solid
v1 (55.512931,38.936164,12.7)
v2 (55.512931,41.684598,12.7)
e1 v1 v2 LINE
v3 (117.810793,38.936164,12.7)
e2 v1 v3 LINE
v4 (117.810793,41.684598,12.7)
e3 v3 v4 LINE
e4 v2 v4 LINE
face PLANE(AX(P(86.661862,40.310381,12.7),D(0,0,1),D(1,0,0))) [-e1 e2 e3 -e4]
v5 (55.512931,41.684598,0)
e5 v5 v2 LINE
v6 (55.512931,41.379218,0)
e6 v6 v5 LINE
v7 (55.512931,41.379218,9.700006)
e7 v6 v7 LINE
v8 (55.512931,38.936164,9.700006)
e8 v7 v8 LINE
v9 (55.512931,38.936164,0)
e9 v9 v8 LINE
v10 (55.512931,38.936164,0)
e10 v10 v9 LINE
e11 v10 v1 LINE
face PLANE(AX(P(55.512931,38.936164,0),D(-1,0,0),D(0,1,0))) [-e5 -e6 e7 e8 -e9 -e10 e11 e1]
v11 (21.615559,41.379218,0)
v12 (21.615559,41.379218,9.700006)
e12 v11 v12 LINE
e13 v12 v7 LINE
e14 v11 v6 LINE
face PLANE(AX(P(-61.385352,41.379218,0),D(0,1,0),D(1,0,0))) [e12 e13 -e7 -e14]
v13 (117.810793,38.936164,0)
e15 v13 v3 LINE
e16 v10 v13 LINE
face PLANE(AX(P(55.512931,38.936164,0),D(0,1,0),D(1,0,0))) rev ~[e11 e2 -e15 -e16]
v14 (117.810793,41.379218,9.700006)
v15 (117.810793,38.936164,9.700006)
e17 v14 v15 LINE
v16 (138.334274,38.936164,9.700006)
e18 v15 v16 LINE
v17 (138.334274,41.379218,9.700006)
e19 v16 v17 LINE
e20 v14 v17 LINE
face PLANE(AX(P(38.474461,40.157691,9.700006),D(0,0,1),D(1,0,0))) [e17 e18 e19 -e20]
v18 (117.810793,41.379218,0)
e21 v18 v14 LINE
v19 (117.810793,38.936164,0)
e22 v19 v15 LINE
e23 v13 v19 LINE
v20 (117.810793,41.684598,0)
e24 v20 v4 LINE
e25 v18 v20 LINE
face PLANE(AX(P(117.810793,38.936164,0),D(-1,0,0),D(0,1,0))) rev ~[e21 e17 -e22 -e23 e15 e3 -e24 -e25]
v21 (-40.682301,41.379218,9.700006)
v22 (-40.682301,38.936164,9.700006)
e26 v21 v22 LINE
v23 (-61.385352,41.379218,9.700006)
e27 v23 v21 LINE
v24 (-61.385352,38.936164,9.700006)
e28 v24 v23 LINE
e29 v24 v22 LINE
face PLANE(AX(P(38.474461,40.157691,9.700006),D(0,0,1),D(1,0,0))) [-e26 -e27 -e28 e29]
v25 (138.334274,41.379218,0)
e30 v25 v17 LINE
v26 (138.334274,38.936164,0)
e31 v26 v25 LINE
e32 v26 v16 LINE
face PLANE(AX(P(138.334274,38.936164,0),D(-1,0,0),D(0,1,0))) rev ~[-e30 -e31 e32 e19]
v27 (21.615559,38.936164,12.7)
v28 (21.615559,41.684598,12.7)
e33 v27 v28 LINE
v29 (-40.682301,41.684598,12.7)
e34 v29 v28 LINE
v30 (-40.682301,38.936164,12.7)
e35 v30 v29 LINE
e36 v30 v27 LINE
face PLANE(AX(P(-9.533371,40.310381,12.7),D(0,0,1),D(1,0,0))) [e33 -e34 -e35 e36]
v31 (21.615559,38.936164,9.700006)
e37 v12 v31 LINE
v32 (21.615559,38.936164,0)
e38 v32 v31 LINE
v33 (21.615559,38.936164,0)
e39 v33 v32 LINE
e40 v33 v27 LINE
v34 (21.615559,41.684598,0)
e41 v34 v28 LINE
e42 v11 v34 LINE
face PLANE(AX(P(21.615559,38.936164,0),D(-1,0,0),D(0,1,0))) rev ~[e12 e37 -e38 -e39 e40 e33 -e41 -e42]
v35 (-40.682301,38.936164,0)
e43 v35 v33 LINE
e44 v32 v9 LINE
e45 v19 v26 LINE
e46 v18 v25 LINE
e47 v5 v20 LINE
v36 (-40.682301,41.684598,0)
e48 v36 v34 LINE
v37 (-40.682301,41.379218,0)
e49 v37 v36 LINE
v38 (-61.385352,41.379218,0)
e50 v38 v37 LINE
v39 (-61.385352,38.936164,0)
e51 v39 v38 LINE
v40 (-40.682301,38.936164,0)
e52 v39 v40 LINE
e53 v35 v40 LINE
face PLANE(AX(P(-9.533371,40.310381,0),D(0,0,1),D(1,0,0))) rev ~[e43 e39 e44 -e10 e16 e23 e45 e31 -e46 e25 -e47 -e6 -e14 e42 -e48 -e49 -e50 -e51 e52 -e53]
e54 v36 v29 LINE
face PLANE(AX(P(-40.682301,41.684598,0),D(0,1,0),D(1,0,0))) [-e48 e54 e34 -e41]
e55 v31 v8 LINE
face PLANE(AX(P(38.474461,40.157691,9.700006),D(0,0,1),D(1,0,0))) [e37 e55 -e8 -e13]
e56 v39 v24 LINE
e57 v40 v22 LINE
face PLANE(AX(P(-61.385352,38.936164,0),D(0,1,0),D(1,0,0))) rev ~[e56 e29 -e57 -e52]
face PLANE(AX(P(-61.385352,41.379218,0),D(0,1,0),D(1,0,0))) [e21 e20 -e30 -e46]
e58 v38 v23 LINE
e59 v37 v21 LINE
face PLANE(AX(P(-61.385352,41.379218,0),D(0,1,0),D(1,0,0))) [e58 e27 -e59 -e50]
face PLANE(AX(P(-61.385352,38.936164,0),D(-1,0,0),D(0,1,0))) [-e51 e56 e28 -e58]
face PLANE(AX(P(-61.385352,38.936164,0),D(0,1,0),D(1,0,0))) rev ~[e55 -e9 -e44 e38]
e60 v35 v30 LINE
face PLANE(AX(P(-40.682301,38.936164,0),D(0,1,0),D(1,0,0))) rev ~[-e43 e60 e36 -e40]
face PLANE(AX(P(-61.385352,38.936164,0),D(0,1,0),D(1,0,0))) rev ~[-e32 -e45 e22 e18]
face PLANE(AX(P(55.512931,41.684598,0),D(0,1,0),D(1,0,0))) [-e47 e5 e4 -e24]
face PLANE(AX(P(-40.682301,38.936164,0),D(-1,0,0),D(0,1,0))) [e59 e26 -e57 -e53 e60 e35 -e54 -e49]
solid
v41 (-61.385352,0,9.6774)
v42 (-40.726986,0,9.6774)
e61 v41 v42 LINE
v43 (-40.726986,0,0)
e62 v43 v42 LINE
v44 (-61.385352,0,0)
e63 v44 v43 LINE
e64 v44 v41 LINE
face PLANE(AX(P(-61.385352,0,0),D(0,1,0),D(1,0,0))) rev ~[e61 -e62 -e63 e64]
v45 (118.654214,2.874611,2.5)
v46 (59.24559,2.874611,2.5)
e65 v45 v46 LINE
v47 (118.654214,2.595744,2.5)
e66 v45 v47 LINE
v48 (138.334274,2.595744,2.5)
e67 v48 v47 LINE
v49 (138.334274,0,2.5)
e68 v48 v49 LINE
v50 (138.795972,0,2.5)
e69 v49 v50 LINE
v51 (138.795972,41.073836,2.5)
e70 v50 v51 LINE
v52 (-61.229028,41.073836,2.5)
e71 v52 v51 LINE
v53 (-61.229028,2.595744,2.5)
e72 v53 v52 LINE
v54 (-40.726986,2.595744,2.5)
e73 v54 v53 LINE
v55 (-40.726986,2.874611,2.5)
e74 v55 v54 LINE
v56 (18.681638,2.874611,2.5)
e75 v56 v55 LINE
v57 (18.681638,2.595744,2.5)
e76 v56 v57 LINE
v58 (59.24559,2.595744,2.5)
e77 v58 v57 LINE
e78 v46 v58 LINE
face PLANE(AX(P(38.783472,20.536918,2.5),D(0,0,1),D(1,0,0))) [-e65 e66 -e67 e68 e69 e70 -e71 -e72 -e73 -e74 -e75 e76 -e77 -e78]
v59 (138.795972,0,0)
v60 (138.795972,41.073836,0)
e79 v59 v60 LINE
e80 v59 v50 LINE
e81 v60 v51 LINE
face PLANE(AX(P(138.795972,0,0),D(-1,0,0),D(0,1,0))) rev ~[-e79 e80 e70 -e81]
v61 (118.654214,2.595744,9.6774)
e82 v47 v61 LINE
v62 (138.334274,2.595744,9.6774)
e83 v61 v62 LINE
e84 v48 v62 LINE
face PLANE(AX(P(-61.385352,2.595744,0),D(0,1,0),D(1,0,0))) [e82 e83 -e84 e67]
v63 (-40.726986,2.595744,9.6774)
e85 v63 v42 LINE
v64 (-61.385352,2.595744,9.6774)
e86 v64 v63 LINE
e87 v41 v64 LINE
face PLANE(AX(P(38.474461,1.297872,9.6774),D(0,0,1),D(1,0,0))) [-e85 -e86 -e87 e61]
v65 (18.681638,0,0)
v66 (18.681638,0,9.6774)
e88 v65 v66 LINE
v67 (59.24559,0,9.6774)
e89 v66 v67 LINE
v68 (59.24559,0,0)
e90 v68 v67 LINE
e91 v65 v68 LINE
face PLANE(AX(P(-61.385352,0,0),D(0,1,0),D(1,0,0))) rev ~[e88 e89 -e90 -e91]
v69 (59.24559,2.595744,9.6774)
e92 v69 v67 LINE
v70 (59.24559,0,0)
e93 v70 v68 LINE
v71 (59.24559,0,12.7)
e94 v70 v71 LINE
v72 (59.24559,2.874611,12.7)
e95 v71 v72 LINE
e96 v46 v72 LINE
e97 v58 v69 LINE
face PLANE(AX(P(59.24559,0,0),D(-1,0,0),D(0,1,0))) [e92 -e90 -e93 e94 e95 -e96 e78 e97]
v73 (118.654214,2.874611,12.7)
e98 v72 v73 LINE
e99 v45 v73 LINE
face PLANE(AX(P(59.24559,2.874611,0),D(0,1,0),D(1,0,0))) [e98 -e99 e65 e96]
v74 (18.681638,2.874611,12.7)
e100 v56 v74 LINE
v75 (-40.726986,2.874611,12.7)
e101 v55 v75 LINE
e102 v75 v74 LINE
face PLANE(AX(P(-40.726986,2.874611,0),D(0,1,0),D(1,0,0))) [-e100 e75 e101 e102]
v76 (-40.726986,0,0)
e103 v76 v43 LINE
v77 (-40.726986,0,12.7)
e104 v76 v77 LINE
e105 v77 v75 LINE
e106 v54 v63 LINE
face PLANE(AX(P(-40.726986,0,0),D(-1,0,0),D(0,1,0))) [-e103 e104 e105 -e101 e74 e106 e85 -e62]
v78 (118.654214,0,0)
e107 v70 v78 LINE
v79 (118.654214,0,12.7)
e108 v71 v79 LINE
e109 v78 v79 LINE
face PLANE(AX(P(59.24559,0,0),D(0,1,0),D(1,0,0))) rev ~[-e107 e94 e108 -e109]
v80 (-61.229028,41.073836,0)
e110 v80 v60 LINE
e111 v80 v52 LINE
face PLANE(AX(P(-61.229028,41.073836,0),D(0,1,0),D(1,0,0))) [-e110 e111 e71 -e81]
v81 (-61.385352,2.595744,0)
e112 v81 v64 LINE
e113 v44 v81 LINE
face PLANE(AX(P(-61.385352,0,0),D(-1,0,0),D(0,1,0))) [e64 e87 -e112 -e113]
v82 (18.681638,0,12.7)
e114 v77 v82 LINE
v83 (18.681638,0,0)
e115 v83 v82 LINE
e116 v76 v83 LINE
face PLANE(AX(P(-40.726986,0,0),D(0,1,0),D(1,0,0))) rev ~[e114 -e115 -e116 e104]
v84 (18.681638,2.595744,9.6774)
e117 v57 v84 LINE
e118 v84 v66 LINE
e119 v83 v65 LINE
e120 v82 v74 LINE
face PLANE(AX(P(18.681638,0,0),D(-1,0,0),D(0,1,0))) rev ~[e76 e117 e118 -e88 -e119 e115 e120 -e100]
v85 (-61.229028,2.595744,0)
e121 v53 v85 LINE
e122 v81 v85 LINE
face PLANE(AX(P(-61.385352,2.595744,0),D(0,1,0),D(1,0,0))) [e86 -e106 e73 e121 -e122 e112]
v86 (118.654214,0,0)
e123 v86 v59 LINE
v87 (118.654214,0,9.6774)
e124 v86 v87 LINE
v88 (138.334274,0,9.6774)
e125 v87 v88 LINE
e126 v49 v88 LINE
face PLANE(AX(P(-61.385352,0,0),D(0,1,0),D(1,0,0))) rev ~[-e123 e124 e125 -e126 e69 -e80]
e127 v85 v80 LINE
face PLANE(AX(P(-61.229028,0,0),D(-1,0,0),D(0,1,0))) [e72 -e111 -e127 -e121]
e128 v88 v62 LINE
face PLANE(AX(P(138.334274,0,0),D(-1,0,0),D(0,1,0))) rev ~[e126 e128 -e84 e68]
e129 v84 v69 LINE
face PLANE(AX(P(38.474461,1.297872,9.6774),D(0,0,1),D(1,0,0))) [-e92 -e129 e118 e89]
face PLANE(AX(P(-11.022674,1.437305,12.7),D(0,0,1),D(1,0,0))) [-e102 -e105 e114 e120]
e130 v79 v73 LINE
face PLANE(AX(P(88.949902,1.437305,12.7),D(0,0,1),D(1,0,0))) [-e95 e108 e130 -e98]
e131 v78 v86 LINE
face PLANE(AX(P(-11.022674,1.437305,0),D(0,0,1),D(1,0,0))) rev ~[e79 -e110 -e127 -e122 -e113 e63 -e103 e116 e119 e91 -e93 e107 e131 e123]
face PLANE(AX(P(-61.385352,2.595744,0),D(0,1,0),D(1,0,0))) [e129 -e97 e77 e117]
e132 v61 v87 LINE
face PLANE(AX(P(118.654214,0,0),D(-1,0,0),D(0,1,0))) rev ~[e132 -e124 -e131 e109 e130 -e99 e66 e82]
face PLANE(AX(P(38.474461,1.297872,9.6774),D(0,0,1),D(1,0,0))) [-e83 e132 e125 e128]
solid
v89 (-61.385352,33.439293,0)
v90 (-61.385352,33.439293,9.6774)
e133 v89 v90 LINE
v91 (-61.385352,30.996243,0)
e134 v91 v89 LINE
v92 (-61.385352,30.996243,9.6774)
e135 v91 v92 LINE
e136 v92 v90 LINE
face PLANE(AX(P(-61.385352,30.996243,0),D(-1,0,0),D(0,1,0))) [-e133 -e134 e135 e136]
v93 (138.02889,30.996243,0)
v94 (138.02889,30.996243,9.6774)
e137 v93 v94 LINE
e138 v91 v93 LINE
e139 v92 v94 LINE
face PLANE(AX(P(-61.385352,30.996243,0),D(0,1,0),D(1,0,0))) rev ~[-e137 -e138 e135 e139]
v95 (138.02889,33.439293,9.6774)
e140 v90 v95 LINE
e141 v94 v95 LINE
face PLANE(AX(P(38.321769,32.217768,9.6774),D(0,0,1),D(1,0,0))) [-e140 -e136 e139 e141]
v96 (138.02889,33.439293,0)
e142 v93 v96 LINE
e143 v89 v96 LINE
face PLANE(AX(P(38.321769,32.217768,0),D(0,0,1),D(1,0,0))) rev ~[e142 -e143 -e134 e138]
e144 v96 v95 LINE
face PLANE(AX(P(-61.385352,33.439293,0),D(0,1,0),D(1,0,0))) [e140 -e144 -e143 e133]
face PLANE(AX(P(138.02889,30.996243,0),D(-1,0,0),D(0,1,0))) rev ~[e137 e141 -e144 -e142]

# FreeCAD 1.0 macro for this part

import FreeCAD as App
import Part
import Sketcher

V = App.Vector
Q = App.Units.Quantity

doc = App.newDocument("Part")
body = doc.addObject("PartDesign::Body", "Body")

# Sketch on XY plane
sketch1 = body.newObject("Sketcher::SketchObject", "Sketch")
sketch1.AttachmentSupport = (doc.getObject("XY_Plane"), [""])
sketch1.MapMode = "FlatFace"
sketch1.addGeometry([
    Part.LineSegment(V(-61.4, 41.4, 0), V(-61.4, 38.9, 0)),
    Part.LineSegment(V(-61.4, 38.9, 0), V(138.3, 38.9, 0)),
    Part.LineSegment(V(138.3, 38.9, 0), V(138.3, 41.4, 0)),
    Part.LineSegment(V(138.3, 41.4, 0), V(-61.4, 41.4, 0)),
], False)
sketch1.addConstraint([
    Sketcher.Constraint("Coincident", 0, 2, 1, 1),
    Sketcher.Constraint("Coincident", 1, 2, 2, 1),
    Sketcher.Constraint("Coincident", 2, 2, 3, 1),
    Sketcher.Constraint("Coincident", 3, 2, 0, 1),
    Sketcher.Constraint("Vertical", 0),
    Sketcher.Constraint("Horizontal", 1),
    Sketcher.Constraint("Vertical", 2),
    Sketcher.Constraint("Horizontal", 3),
    Sketcher.Constraint("DistanceX", 1, 1, 1, 2, 199.719626),
    Sketcher.Constraint("DistanceY", 0, 2, 0, 1, 2.443053),
    Sketcher.Constraint("DistanceX", 0, 2, -1, 1, 61.385352),
    Sketcher.Constraint("DistanceY", -1, 1, 0, 2, 38.936164),
])
pad1 = body.newObject("PartDesign::Pad", "Pad")
pad1.Profile = sketch1
pad1.Length = 9.700006

# Sketch on XY plane
sketch2 = body.newObject("Sketcher::SketchObject", "Sketch001")
sketch2.AttachmentSupport = (doc.getObject("XY_Plane"), [""])
sketch2.MapMode = "FlatFace"
sketch2.addGeometry([
    Part.LineSegment(V(-40.7, 41.7, 0), V(-40.7, 38.9, 0)),  # 0
    Part.LineSegment(V(-40.7, 38.9, 0), V(21.6, 38.9, 0)),  # 1
    Part.LineSegment(V(21.6, 38.9, 0), V(21.6, 41.7, 0)),  # 2
    Part.LineSegment(V(21.6, 41.7, 0), V(-40.7, 41.7, 0)),  # 3
    Part.LineSegment(V(55.5, 41.7, 0), V(55.5, 38.9, 0)),  # 4
    Part.LineSegment(V(55.5, 38.9, 0), V(117.8, 38.9, 0)),  # 5
    Part.LineSegment(V(117.8, 38.9, 0), V(117.8, 41.7, 0)),  # 6
    Part.LineSegment(V(117.8, 41.7, 0), V(55.5, 41.7, 0)),  # 7
], False)
sketch2.addConstraint([
    Sketcher.Constraint("Coincident", 0, 2, 1, 1),
    Sketcher.Constraint("Coincident", 1, 2, 2, 1),
    Sketcher.Constraint("Coincident", 2, 2, 3, 1),
    Sketcher.Constraint("Coincident", 3, 2, 0, 1),
    Sketcher.Constraint("Coincident", 4, 2, 5, 1),
    Sketcher.Constraint("Coincident", 5, 2, 6, 1),
    Sketcher.Constraint("Coincident", 6, 2, 7, 1),
    Sketcher.Constraint("Coincident", 7, 2, 4, 1),
    Sketcher.Constraint("Vertical", 0),
    Sketcher.Constraint("Horizontal", 1),
    Sketcher.Constraint("Vertical", 2),
    Sketcher.Constraint("Horizontal", 3),
    Sketcher.Constraint("Vertical", 4),
    Sketcher.Constraint("Horizontal", 5),
    Sketcher.Constraint("Vertical", 6),
    Sketcher.Constraint("Horizontal", 7),
    Sketcher.Constraint("Horizontal", 1, 2, 4, 2),
    Sketcher.Constraint("Horizontal", 3, 2, 6, 2),
    Sketcher.Constraint("DistanceX", 1, 1, 1, 2, 62.29786),
    Sketcher.Constraint("DistanceX", 0, 2, -1, 1, 40.682301),
    Sketcher.Constraint("DistanceX", 5, 1, 5, 2, 62.297862),
    Sketcher.Constraint("DistanceY", 0, 2, 0, 1, 2.748434),
    Sketcher.Constraint("DistanceX", -1, 1, 4, 2, 55.512931),
    Sketcher.Constraint("DistanceY", -1, 1, 0, 2, 38.936164),
])
pad2 = body.newObject("PartDesign::Pad", "Pad001")
pad2.Profile = sketch2
pad2.Length = Q("0.5 in")
body2 = doc.addObject("PartDesign::Body", "Body001")

# Sketch on XY plane
sketch3 = body2.newObject("Sketcher::SketchObject", "Sketch002")
sketch3.AttachmentSupport = (doc.getObject("XY_Plane001"), [""])
sketch3.MapMode = "FlatFace"
sketch3.addGeometry([
    Part.LineSegment(V(-61.4, 33.4, 0), V(-61.4, 31, 0)),
    Part.LineSegment(V(-61.4, 31, 0), V(138, 31, 0)),
    Part.LineSegment(V(138, 31, 0), V(138, 33.4, 0)),
    Part.LineSegment(V(138, 33.4, 0), V(-61.4, 33.4, 0)),
], False)
sketch3.addConstraint([
    Sketcher.Constraint("Coincident", 0, 2, 1, 1),
    Sketcher.Constraint("Coincident", 1, 2, 2, 1),
    Sketcher.Constraint("Coincident", 2, 2, 3, 1),
    Sketcher.Constraint("Coincident", 3, 2, 0, 1),
    Sketcher.Constraint("Vertical", 0),
    Sketcher.Constraint("Horizontal", 1),
    Sketcher.Constraint("Vertical", 2),
    Sketcher.Constraint("Horizontal", 3),
    Sketcher.Constraint("DistanceX", 1, 1, 1, 2, 199.414242),
    Sketcher.Constraint("DistanceY", 0, 2, 0, 1, 2.443051),
    Sketcher.Constraint("DistanceX", 0, 2, -1, 1, 61.385352),
    Sketcher.Constraint("DistanceY", -1, 1, 0, 2, 30.996243),
])
pad3 = body2.newObject("PartDesign::Pad", "Pad002")
pad3.Profile = sketch3
pad3.Length = Q("0.381 in")
body3 = doc.addObject("PartDesign::Body", "Body002")

# Sketch on XY plane
sketch4 = body3.newObject("Sketcher::SketchObject", "Sketch003")
sketch4.AttachmentSupport = (doc.getObject("XY_Plane002"), [""])
sketch4.MapMode = "FlatFace"
sketch4.addGeometry([
    Part.LineSegment(V(-61, 41, 0), V(-61, 0, 0)),
    Part.LineSegment(V(-61, 0, 0), V(139, 0, 0)),
    Part.LineSegment(V(139, 0, 0), V(139, 41, 0)),
    Part.LineSegment(V(139, 41, 0), V(-61, 41, 0)),
], False)
sketch4.addConstraint([
    Sketcher.Constraint("Coincident", 0, 2, 1, 1),
    Sketcher.Constraint("Coincident", 1, 2, 2, 1),
    Sketcher.Constraint("Coincident", 2, 2, 3, 1),
    Sketcher.Constraint("Coincident", 3, 2, 0, 1),
    Sketcher.Constraint("Vertical", 0),
    Sketcher.Constraint("Horizontal", 1),
    Sketcher.Constraint("Vertical", 2),
    Sketcher.Constraint("Horizontal", 3),
    Sketcher.Constraint("PointOnObject", 0, 2, -1),
    Sketcher.Constraint("DistanceX", 1, 1, 1, 2, Q("7.875 in")),
    Sketcher.Constraint("DistanceY", 0, 2, 0, 1, 41.073836),
    Sketcher.Constraint("DistanceX", -1, 1, 1, 2, 138.795972),
])
pad4 = body3.newObject("PartDesign::Pad", "Pad003")
pad4.Profile = sketch4
pad4.Length = 2.5

# Sketch on XY plane
sketch5 = body3.newObject("Sketcher::SketchObject", "Sketch004")
sketch5.AttachmentSupport = (doc.getObject("XY_Plane002"), [""])
sketch5.MapMode = "FlatFace"
sketch5.addGeometry([
    Part.LineSegment(V(-61.4, 2.6, 0), V(-61.4, 0, 0)),
    Part.LineSegment(V(-61.4, 0, 0), V(138.3, 0, 0)),
    Part.LineSegment(V(138.3, 0, 0), V(138.3, 2.6, 0)),
    Part.LineSegment(V(138.3, 2.6, 0), V(-61.4, 2.6, 0)),
], False)
sketch5.addConstraint([
    Sketcher.Constraint("Coincident", 0, 2, 1, 1),
    Sketcher.Constraint("Coincident", 1, 2, 2, 1),
    Sketcher.Constraint("Coincident", 2, 2, 3, 1),
    Sketcher.Constraint("Coincident", 3, 2, 0, 1),
    Sketcher.Constraint("Vertical", 0),
    Sketcher.Constraint("Horizontal", 1),
    Sketcher.Constraint("Vertical", 2),
    Sketcher.Constraint("Horizontal", 3),
    Sketcher.Constraint("PointOnObject", 0, 2, -1),
    Sketcher.Constraint("DistanceX", 1, 1, 1, 2, 199.719626),
    Sketcher.Constraint("DistanceY", 0, 2, 0, 1, 2.595744),
    Sketcher.Constraint("DistanceX", 0, 2, -1, 1, 61.385352),
])
pad5 = body3.newObject("PartDesign::Pad", "Pad004")
pad5.Profile = sketch5
pad5.Length = Q("0.381 in")

# Sketch on XY plane
sketch6 = body3.newObject("Sketcher::SketchObject", "Sketch005")
sketch6.AttachmentSupport = (doc.getObject("XY_Plane002"), [""])
sketch6.MapMode = "FlatFace"
sketch6.addGeometry([
    Part.LineSegment(V(-40.7, 2.9, 0), V(-40.7, 0, 0)),  # 0
    Part.LineSegment(V(-40.7, 0, 0), V(18.7, 0, 0)),  # 1
    Part.LineSegment(V(18.7, 0, 0), V(18.7, 2.9, 0)),  # 2
    Part.LineSegment(V(18.7, 2.9, 0), V(-40.7, 2.9, 0)),  # 3
    Part.LineSegment(V(59.2, 2.9, 0), V(59.2, 0, 0)),  # 4
    Part.LineSegment(V(59.2, 0, 0), V(118.7, 0, 0)),  # 5
    Part.LineSegment(V(118.7, 0, 0), V(118.7, 2.9, 0)),  # 6
    Part.LineSegment(V(118.7, 2.9, 0), V(59.2, 2.9, 0)),  # 7
], False)
sketch6.addConstraint([
    Sketcher.Constraint("Coincident", 0, 2, 1, 1),
    Sketcher.Constraint("Coincident", 1, 2, 2, 1),
    Sketcher.Constraint("Coincident", 2, 2, 3, 1),
    Sketcher.Constraint("Coincident", 3, 2, 0, 1),
    Sketcher.Constraint("Coincident", 4, 2, 5, 1),
    Sketcher.Constraint("Coincident", 5, 2, 6, 1),
    Sketcher.Constraint("Coincident", 6, 2, 7, 1),
    Sketcher.Constraint("Coincident", 7, 2, 4, 1),
    Sketcher.Constraint("Vertical", 0),
    Sketcher.Constraint("Horizontal", 1),
    Sketcher.Constraint("Vertical", 2),
    Sketcher.Constraint("Horizontal", 3),
    Sketcher.Constraint("Vertical", 4),
    Sketcher.Constraint("Horizontal", 5),
    Sketcher.Constraint("Vertical", 6),
    Sketcher.Constraint("Horizontal", 7),
    Sketcher.Constraint("PointOnObject", 0, 2, -1),
    Sketcher.Constraint("PointOnObject", 4, 2, -1),
    Sketcher.Constraint("Horizontal", 3, 2, 6, 2),
    Sketcher.Constraint("Equal", 3, 5),
    Sketcher.Constraint("DistanceY", 0, 2, 0, 1, 2.874611),
    Sketcher.Constraint("DistanceX", 0, 2, 5, 2, 159.3812),
    Sketcher.Constraint("DistanceX", 1, 1, 1, 2, 59.408624),
    Sketcher.Constraint("DistanceX", -1, 1, 4, 2, 59.24559),
])
pad6 = body3.newObject("PartDesign::Pad", "Pad005")
pad6.Profile = sketch6
pad6.Length = Q("0.5 in")
body4 = doc.addObject("PartDesign::Body", "Body003")
doc.recompute()

mirroring = doc.addObject("Part::Mirroring", "Mirroring")
mirroring.Source = body
mirroring.Base = V(0, 0, 0)
mirroring.Normal = V(0, -1, 0)
body4.BaseFeature = mirroring
doc.recompute()

doc.recompute()
